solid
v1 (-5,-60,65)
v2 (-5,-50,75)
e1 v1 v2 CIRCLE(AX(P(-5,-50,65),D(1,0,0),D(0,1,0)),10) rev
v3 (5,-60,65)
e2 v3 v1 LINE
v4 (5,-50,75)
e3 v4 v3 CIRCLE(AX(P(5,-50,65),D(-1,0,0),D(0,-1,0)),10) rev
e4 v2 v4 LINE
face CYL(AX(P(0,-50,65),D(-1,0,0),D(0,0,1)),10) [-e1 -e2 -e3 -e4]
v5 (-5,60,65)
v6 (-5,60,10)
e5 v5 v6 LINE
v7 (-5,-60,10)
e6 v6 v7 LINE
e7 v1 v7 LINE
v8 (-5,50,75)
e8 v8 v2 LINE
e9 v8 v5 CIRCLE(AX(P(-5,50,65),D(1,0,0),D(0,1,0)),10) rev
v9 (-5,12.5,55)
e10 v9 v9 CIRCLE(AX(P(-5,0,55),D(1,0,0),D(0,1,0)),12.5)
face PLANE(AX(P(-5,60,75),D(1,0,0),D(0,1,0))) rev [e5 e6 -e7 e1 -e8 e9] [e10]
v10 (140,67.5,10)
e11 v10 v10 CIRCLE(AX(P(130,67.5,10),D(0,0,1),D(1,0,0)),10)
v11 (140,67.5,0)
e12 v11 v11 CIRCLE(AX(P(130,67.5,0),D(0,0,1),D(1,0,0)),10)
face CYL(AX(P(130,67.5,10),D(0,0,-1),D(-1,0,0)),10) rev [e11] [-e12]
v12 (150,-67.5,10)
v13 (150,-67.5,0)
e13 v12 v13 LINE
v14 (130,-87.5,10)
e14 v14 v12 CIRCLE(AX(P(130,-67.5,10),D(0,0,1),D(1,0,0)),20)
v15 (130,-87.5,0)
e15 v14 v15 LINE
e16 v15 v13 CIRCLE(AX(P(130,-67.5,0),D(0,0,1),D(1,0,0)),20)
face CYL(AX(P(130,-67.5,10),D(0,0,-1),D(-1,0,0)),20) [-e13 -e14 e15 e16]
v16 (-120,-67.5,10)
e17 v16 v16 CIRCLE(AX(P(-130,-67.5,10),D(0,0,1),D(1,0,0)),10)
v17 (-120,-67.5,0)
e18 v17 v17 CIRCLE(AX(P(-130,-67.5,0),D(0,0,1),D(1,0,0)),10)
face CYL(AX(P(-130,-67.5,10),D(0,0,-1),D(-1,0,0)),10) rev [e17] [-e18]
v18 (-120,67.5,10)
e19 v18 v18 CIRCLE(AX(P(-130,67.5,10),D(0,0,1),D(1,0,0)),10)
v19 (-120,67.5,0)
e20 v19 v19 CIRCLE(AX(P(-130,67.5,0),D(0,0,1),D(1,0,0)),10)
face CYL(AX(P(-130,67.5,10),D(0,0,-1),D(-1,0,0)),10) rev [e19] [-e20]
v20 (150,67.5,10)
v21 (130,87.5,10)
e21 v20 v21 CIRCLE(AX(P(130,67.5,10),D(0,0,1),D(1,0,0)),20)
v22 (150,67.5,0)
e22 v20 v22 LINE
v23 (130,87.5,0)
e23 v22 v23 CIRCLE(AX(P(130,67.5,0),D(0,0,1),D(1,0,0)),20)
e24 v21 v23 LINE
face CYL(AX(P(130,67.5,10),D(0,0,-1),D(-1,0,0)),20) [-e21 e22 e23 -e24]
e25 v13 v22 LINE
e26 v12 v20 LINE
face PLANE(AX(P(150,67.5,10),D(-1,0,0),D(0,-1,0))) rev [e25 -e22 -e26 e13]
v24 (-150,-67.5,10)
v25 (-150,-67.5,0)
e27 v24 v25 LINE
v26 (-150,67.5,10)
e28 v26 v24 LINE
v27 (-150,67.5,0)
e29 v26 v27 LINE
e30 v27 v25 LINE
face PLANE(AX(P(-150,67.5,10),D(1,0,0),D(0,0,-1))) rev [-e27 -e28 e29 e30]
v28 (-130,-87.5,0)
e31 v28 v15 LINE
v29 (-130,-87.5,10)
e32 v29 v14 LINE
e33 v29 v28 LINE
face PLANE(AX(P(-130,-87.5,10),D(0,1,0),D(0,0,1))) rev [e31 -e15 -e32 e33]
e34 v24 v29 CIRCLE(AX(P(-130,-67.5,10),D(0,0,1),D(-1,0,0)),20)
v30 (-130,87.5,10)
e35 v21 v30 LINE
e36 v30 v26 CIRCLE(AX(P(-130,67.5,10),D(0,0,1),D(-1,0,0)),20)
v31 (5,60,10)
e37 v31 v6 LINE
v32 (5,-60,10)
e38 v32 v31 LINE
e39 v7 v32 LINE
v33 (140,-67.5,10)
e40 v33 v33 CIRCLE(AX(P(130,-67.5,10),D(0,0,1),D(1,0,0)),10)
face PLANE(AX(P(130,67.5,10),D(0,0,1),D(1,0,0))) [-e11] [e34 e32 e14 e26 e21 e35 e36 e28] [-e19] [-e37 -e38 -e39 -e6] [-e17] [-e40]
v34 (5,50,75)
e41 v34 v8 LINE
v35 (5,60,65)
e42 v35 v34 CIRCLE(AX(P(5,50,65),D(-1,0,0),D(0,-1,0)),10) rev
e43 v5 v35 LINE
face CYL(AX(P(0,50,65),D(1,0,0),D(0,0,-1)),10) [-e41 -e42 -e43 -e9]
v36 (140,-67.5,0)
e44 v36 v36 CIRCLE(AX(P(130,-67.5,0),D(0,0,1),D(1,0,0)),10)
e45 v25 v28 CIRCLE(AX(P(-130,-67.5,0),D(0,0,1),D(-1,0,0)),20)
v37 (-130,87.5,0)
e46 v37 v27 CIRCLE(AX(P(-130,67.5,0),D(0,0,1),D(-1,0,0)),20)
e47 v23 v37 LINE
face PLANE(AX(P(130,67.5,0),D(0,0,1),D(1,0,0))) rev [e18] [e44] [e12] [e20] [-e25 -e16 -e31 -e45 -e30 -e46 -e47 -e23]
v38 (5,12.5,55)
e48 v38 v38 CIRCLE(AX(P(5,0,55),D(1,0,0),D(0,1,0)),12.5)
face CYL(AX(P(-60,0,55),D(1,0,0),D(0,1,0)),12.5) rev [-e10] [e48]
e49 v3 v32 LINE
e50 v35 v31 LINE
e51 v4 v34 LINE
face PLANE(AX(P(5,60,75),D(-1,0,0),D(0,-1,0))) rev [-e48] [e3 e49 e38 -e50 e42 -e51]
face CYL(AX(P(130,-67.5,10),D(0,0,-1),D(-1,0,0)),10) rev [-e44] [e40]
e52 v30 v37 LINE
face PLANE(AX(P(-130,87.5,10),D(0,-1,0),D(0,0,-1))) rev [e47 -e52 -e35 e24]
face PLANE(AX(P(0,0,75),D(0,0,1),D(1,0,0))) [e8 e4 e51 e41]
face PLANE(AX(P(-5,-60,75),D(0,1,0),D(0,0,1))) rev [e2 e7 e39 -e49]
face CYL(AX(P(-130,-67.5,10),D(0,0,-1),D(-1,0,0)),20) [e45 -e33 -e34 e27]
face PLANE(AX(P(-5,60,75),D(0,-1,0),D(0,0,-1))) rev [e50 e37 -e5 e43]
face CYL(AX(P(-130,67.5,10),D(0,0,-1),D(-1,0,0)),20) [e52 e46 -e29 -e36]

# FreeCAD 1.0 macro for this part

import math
import FreeCAD as App
import Part
import Sketcher

V = App.Vector


def edges_at(feature, points):
    """Names of the edges that pass closest to the given points."""
    edges = feature.Shape.Edges
    near = lambda p: min(range(len(edges)), key=lambda i: edges[i].distToShape(Part.Vertex(*p))[0])
    return sorted({f"Edge{near(p) + 1}" for p in points})


def add_polygon(sketch, points):
    """Adds a closed chain of lines whose ends are joined by coincident constraints."""
    first, n = sketch.GeometryCount, len(points)
    for a, b in zip(points, points[1:] + points[:1]):
        sketch.addGeometry(Part.LineSegment(App.Vector(*a, 0), App.Vector(*b, 0)), False)
    for i in range(n):
        sketch.addConstraint(Sketcher.Constraint("Coincident", first + i, 2, first + (i + 1) % n, 1))

doc = App.newDocument("Part")
body = doc.addObject("PartDesign::Body", "Body")

# Sketch on XY plane
sketch1 = doc.addObject("Sketcher::SketchObject", "Sketch")
body.addObject(sketch1)
sketch1.AttachmentSupport = (doc.XY_Plane, [""])
sketch1.MapMode = "FlatFace"
sketch1.addGeometry(Part.LineSegment(V(130, 88, 0), V(-130, 88, 0)), False)
sketch1.addGeometry(Part.ArcOfCircle(Part.Circle(V(-130, 68, 0), V(0, 0, 1), 20), math.radians(90), math.radians(180)), False)
sketch1.addGeometry(Part.LineSegment(V(-150, 68, 0), V(-150, -68, 0)), False)
sketch1.addGeometry(Part.ArcOfCircle(Part.Circle(V(-130, -68, 0), V(0, 0, 1), 20), math.radians(180), math.radians(270)), False)
sketch1.addGeometry(Part.LineSegment(V(-130, -88, 0), V(130, -88, 0)), False)
sketch1.addGeometry(Part.ArcOfCircle(Part.Circle(V(130, -68, 0), V(0, 0, 1), 20), math.radians(-90), math.radians(0)), False)
sketch1.addGeometry(Part.LineSegment(V(150, -68, 0), V(150, 68, 0)), False)
sketch1.addGeometry(Part.ArcOfCircle(Part.Circle(V(130, 68, 0), V(0, 0, 1), 20), math.radians(0), math.radians(90)), False)
sketch1.addGeometry(Part.Circle(V(130, -68, 0), V(0, 0, 1), 10), False)
sketch1.addGeometry(Part.Circle(V(-130, -68, 0), V(0, 0, 1), 10), False)
sketch1.addGeometry(Part.Circle(V(130, 68, 0), V(0, 0, 1), 10), False)
sketch1.addGeometry(Part.Circle(V(-130, 68, 0), V(0, 0, 1), 10), False)
sketch1.addConstraint(Sketcher.Constraint("Tangent", 0, 2, 1, 1))
sketch1.addConstraint(Sketcher.Constraint("Tangent", 1, 2, 2, 1))
sketch1.addConstraint(Sketcher.Constraint("Tangent", 2, 2, 3, 1))
sketch1.addConstraint(Sketcher.Constraint("Tangent", 3, 2, 4, 1))
sketch1.addConstraint(Sketcher.Constraint("Tangent", 4, 2, 5, 1))
sketch1.addConstraint(Sketcher.Constraint("Tangent", 5, 2, 6, 1))
sketch1.addConstraint(Sketcher.Constraint("Tangent", 6, 2, 7, 1))
sketch1.addConstraint(Sketcher.Constraint("Tangent", 7, 2, 0, 1))
sketch1.addConstraint(Sketcher.Constraint("Horizontal", 0))
sketch1.addConstraint(Sketcher.Constraint("Vertical", 2))
sketch1.addConstraint(Sketcher.Constraint("Horizontal", 4))
sketch1.addConstraint(Sketcher.Constraint("Vertical", 6))
sketch1.addConstraint(Sketcher.Constraint("Coincident", 8, 3, 5, 3))
sketch1.addConstraint(Sketcher.Constraint("Coincident", 9, 3, 3, 3))
sketch1.addConstraint(Sketcher.Constraint("Coincident", 10, 3, 7, 3))
sketch1.addConstraint(Sketcher.Constraint("Coincident", 11, 3, 1, 3))
sketch1.addConstraint(Sketcher.Constraint("Equal", 1, 3))
sketch1.addConstraint(Sketcher.Constraint("Equal", 3, 5))
sketch1.addConstraint(Sketcher.Constraint("Equal", 5, 7))
sketch1.addConstraint(Sketcher.Constraint("Equal", 8, 9))
sketch1.addConstraint(Sketcher.Constraint("Equal", 9, 10))
sketch1.addConstraint(Sketcher.Constraint("Equal", 10, 11))
sketch1.addConstraint(Sketcher.Constraint("Symmetric", 1, 3, 5, 3, -1, 1))
sketch1.addConstraint(Sketcher.Constraint("Diameter", 8, 20.0))
sketch1.addConstraint(Sketcher.Constraint("Radius", 1, 20.0))
sketch1.addConstraint(Sketcher.Constraint("DistanceX", 0, 2, 0, 1, 260.0))
sketch1.addConstraint(Sketcher.Constraint("DistanceY", 2, 2, 2, 1, 135.0))
pad1 = doc.addObject("PartDesign::Pad", "Pad")
body.addObject(pad1)
pad1.Profile = sketch1
pad1.Length = 10

# Sketch on XY plane
sketch2 = doc.addObject("Sketcher::SketchObject", "Sketch001")
body.addObject(sketch2)
sketch2.AttachmentSupport = (doc.XY_Plane, [""])
sketch2.MapMode = "FlatFace"
sketch2.AttachmentOffset = App.Placement(V(0, 0, 10), App.Rotation())
add_polygon(sketch2, [(-5, 60), (-5, -60), (5, -60), (5, 60)])  # lines 0-3
sketch2.addConstraint(Sketcher.Constraint("Vertical", 0))
sketch2.addConstraint(Sketcher.Constraint("Horizontal", 1))
sketch2.addConstraint(Sketcher.Constraint("Vertical", 2))
sketch2.addConstraint(Sketcher.Constraint("Horizontal", 3))
sketch2.addConstraint(Sketcher.Constraint("Symmetric", 0, 2, 2, 2, -1, 1))
sketch2.addConstraint(Sketcher.Constraint("DistanceX", 1, 1, 1, 2, 10.0))
sketch2.addConstraint(Sketcher.Constraint("DistanceY", 0, 2, 0, 1, 120.0))
pad2 = doc.addObject("PartDesign::Pad", "Pad001")
body.addObject(pad2)
pad2.Profile = sketch2
pad2.Length = 65
doc.recompute()

fillet = doc.addObject("PartDesign::Fillet", "Fillet")
body.addObject(fillet)
fillet.Base = (pad2, edges_at(pad2, [(0, 60, 75), (0, -60, 75)]))
fillet.Radius = 10

# Sketch on YZ plane
sketch3 = doc.addObject("Sketcher::SketchObject", "Sketch002")
body.addObject(sketch3)
sketch3.AttachmentSupport = (doc.YZ_Plane, [""])
sketch3.MapMode = "FlatFace"
sketch3.AttachmentOffset = App.Placement(V(0, 0, 5), App.Rotation())
sketch3.addGeometry(Part.Circle(V(0, 55, 0), V(0, 0, 1), 12), False)
sketch3.addConstraint(Sketcher.Constraint("PointOnObject", 0, 3, -2))
sketch3.addConstraint(Sketcher.Constraint("Diameter", 0, 25.0))
sketch3.addConstraint(Sketcher.Constraint("DistanceY", -1, 1, 0, 3, 55.0))
pocket1 = doc.addObject("PartDesign::Pocket", "Pocket")
body.addObject(pocket1)
pocket1.Profile = sketch3
pocket1.Length = 65

doc.recompute()
